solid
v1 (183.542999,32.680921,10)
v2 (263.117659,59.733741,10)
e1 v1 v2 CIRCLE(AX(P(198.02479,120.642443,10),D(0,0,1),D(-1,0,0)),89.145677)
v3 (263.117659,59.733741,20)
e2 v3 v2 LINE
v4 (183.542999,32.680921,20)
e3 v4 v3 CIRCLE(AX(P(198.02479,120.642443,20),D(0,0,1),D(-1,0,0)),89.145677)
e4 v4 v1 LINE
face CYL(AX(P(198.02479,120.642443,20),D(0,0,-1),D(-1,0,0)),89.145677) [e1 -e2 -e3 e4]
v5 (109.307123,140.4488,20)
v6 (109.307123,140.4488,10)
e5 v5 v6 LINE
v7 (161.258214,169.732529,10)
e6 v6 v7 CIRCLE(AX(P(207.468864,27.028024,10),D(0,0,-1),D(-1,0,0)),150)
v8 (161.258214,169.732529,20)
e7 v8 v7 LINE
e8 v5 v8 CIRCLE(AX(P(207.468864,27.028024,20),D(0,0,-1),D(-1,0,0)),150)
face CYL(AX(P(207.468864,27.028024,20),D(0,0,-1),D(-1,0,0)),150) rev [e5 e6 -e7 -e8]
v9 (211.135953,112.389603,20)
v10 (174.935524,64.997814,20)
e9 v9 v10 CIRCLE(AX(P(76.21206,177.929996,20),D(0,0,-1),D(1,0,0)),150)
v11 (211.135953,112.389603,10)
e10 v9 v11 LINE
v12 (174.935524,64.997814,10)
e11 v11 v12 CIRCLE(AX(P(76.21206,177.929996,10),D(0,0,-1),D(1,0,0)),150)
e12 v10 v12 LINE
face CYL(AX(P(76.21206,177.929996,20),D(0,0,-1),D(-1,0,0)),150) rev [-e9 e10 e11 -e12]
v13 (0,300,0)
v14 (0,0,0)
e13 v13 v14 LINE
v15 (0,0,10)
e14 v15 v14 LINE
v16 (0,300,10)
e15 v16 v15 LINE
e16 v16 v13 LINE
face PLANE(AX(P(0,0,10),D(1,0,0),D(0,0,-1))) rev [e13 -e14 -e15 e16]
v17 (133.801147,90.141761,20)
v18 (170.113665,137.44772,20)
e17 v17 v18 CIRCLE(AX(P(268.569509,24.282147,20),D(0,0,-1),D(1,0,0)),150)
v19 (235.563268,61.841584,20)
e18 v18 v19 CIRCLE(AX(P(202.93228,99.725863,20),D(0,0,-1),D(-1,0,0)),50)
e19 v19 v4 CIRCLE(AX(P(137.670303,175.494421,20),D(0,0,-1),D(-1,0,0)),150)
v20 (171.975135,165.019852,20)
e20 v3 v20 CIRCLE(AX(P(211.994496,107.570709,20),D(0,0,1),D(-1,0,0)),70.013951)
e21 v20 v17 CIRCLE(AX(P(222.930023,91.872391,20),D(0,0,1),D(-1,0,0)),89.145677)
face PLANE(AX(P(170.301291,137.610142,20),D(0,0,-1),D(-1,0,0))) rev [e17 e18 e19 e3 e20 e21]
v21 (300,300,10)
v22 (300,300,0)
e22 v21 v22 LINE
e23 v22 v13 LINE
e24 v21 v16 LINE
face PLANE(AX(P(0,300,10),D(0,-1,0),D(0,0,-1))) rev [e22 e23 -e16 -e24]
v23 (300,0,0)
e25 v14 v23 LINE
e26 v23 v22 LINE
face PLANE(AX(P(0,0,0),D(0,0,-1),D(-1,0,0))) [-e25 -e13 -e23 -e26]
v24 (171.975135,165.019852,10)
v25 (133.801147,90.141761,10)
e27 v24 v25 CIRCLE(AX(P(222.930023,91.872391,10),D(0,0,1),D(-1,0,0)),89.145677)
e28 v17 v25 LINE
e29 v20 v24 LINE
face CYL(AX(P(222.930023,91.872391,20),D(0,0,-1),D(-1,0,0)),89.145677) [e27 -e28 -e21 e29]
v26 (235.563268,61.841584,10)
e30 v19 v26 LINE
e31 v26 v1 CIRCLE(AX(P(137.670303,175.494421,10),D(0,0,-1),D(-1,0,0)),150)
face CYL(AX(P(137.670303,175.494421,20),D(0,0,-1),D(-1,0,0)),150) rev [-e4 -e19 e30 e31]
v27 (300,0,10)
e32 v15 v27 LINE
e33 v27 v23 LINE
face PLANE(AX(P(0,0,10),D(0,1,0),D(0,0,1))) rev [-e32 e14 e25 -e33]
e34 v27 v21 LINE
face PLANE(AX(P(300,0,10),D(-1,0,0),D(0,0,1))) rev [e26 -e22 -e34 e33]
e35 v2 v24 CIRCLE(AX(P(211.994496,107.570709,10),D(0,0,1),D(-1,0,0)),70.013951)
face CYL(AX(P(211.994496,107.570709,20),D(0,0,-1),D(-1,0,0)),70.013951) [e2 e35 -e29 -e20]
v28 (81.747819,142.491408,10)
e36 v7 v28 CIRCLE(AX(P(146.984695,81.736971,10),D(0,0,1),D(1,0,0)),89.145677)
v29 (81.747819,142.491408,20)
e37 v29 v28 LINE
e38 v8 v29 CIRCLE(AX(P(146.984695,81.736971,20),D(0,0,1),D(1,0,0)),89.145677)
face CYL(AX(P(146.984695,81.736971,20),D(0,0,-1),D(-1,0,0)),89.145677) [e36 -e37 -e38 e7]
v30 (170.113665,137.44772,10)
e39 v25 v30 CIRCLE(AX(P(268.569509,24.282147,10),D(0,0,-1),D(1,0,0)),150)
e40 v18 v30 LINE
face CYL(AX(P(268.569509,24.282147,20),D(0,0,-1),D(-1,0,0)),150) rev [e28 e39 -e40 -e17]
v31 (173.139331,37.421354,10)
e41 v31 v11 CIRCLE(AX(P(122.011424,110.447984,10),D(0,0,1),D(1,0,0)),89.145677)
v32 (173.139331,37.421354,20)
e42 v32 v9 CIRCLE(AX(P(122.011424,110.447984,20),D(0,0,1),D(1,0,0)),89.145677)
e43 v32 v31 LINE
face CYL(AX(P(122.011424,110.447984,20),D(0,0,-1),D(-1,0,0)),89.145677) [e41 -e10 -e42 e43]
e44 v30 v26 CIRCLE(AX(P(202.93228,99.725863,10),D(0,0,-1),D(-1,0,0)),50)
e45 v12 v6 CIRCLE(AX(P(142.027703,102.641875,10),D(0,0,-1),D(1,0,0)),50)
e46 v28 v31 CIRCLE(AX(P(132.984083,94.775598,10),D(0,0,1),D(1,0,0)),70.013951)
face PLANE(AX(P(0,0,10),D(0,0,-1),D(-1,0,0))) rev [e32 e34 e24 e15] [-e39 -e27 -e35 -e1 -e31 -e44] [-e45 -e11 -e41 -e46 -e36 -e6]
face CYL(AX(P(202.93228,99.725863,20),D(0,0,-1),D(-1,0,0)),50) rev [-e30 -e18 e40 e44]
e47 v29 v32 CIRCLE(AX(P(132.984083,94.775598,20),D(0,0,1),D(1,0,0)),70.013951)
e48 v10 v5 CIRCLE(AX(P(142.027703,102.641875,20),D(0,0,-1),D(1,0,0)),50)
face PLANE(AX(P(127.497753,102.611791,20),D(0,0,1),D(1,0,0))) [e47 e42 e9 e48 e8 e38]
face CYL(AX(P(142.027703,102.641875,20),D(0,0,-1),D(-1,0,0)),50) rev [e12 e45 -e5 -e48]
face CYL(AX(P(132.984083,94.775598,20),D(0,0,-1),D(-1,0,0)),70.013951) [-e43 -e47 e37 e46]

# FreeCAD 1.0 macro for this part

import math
import FreeCAD as App
import Part
import Sketcher

V = App.Vector

doc = App.newDocument("Part")
params = doc.addObject("Spreadsheet::Sheet", "Params")
for row, (alias, value) in enumerate([
    ("sketch1_width", "300 mm"),
    ("pad1_length", "10 mm"),
    ("sketch2_radius", "150 mm"),
    ("sketch2_radius2", "50 mm"),
    ("pad2_length", "10 mm"),
], start=1):
    params.set(f"A{row}", alias)
    params.set(f"B{row}", "=" + value)
    params.setAlias(f"B{row}", alias)

body = doc.addObject("PartDesign::Body", "Body")

sketch1 = body.newObject("Sketcher::SketchObject", "Sketch")
sketch1.AttachmentSupport = (doc.getObject("XY_Plane"), [""])
sketch1.MapMode = "FlatFace"
sketch1.addGeometry(Part.LineSegment(V(0, 300, 0), V(0, 0, 0)), False)
sketch1.addGeometry(Part.LineSegment(V(0, 0, 0), V(300, 0, 0)), False)
sketch1.addGeometry(Part.LineSegment(V(300, 0, 0), V(300, 300, 0)), False)
sketch1.addGeometry(Part.LineSegment(V(300, 300, 0), V(0, 300, 0)), False)
sketch1.addConstraint(Sketcher.Constraint("Coincident", 0, 2, 1, 1))
sketch1.addConstraint(Sketcher.Constraint("Coincident", 1, 2, 2, 1))
sketch1.addConstraint(Sketcher.Constraint("Coincident", 2, 2, 3, 1))
sketch1.addConstraint(Sketcher.Constraint("Coincident", 3, 2, 0, 1))
sketch1.addConstraint(Sketcher.Constraint("Vertical", 0))
sketch1.addConstraint(Sketcher.Constraint("Horizontal", 1))
sketch1.addConstraint(Sketcher.Constraint("Vertical", 2))
sketch1.addConstraint(Sketcher.Constraint("Horizontal", 3))
sketch1.addConstraint(Sketcher.Constraint("Coincident", 0, 2, -1, 1))
sketch1.addConstraint(Sketcher.Constraint("Equal", 3, 0))
sketch1.addConstraint(Sketcher.Constraint("DistanceX", 1, 1, 1, 2, 300.0))
sketch1.setExpression("Constraints[10]", "Params.sketch1_width")
pad1 = body.newObject("PartDesign::Pad", "Pad")
pad1.Profile = sketch1
pad1.setExpression("Length", "Params.pad1_length")

sketch2 = body.newObject("Sketcher::SketchObject", "Sketch001")
sketch2.AttachmentSupport = (doc.getObject("XY_Plane"), [""])
sketch2.MapMode = "FlatFace"
sketch2.AttachmentOffset = App.Placement(V(0, 0, 10), App.Rotation())
sketch2.addGeometry(Part.ArcOfCircle(Part.Circle(V(147, 82, 0), V(0, 0, 1), 89), math.radians(81), math.radians(137)), False)
sketch2.addGeometry(Part.ArcOfCircle(Part.Circle(V(133, 95, 0), V(0, 0, 1), 70), math.radians(137), math.radians(305)), False)
sketch2.addGeometry(Part.ArcOfCircle(Part.Circle(V(122, 110, 0), V(0, 0, 1), 89), math.radians(-55), math.radians(1)), False)
sketch2.addGeometry(Part.ArcOfCircle(Part.Circle(V(76, 178, 0), V(0, 0, 1), 150), math.radians(-49), math.radians(-26)), False)
sketch2.addGeometry(Part.ArcOfCircle(Part.Circle(V(142, 103, 0), V(0, 0, 1), 50), math.radians(131), math.radians(311)), False)
sketch2.addGeometry(Part.ArcOfCircle(Part.Circle(V(207, 27, 0), V(0, 0, 1), 150), math.radians(108), math.radians(131)), False)
sketch2.addGeometry(Part.ArcOfCircle(Part.Circle(V(198, 121, 0), V(0, 0, 1), 89), math.radians(-99), math.radians(-43)), False)
sketch2.addGeometry(Part.ArcOfCircle(Part.Circle(V(212, 108, 0), V(0, 0, 1), 70), math.radians(-43), math.radians(125)), False)
sketch2.addGeometry(Part.ArcOfCircle(Part.Circle(V(223, 92, 0), V(0, 0, 1), 89), math.radians(125), math.radians(181)), False)
sketch2.addGeometry(Part.ArcOfCircle(Part.Circle(V(269, 24, 0), V(0, 0, 1), 150), math.radians(131), math.radians(154)), False)
sketch2.addGeometry(Part.ArcOfCircle(Part.Circle(V(203, 100, 0), V(0, 0, 1), 50), math.radians(-49), math.radians(131)), False)
sketch2.addGeometry(Part.ArcOfCircle(Part.Circle(V(138, 175, 0), V(0, 0, 1), 150), math.radians(-72), math.radians(-49)), False)
sketch2.addConstraint(Sketcher.Constraint("Tangent", 0, 2, 1, 1))
sketch2.addConstraint(Sketcher.Constraint("Tangent", 1, 2, 2, 1))
sketch2.addConstraint(Sketcher.Constraint("Coincident", 2, 2, 3, 2))
sketch2.addConstraint(Sketcher.Constraint("Tangent", 3, 1, 4, 2))
sketch2.addConstraint(Sketcher.Constraint("Tangent", 4, 1, 5, 2))
sketch2.addConstraint(Sketcher.Constraint("Coincident", 5, 1, 0, 1))
sketch2.addConstraint(Sketcher.Constraint("Tangent", 6, 2, 7, 1))
sketch2.addConstraint(Sketcher.Constraint("Tangent", 7, 2, 8, 1))
sketch2.addConstraint(Sketcher.Constraint("Coincident", 8, 2, 9, 2))
sketch2.addConstraint(Sketcher.Constraint("Tangent", 9, 1, 10, 2))
sketch2.addConstraint(Sketcher.Constraint("Tangent", 10, 1, 11, 2))
sketch2.addConstraint(Sketcher.Constraint("Coincident", 11, 1, 6, 1))
sketch2.addConstraint(Sketcher.Constraint("Equal", 0, 2))
sketch2.addConstraint(Sketcher.Constraint("Equal", 3, 5))
sketch2.addConstraint(Sketcher.Constraint("Equal", 2, 6))
sketch2.addConstraint(Sketcher.Constraint("Equal", 1, 7))
sketch2.addConstraint(Sketcher.Constraint("Equal", 6, 8))
sketch2.addConstraint(Sketcher.Constraint("Equal", 5, 9))
sketch2.addConstraint(Sketcher.Constraint("Equal", 4, 10))
sketch2.addConstraint(Sketcher.Constraint("Equal", 9, 11))
sketch2.addConstraint(Sketcher.Constraint("Radius", 3, 150.0))
sketch2.addConstraint(Sketcher.Constraint("Radius", 4, 50.0))
sketch2.addConstraint(Sketcher.Constraint("Radius", 1, 70.013951))
sketch2.addConstraint(Sketcher.Constraint("DistanceX", -1, 1, 11, 1, 183.542999))
sketch2.addConstraint(Sketcher.Constraint("Radius", 0, 89.145677))
sketch2.addConstraint(Sketcher.Constraint("DistanceY", -1, 1, 4, 1, 140.4488))
sketch2.addConstraint(Sketcher.Constraint("DistanceX", 0, 3, 7, 3, 65.009802))
sketch2.addConstraint(Sketcher.Constraint("DistanceX", 11, 3, 4, 3, 4.3574))
sketch2.addConstraint(Sketcher.Constraint("DistanceX", 4, 1, 2, 3, 12.704301))
sketch2.addConstraint(Sketcher.Constraint("DistanceY", -1, 1, 0, 3, 81.736971))
sketch2.addConstraint(Sketcher.Constraint("DistanceX", -1, 1, 3, 3, 76.21206))
sketch2.addConstraint(Sketcher.Constraint("DistanceX", -1, 1, 6, 3, 198.02479))
sketch2.addConstraint(Sketcher.Constraint("DistanceY", -1, 1, 7, 3, 107.570709))
sketch2.addConstraint(Sketcher.Constraint("DistanceY", -1, 1, 8, 3, 91.872391))
sketch2.addConstraint(Sketcher.Constraint("DistanceX", -1, 1, 9, 3, 268.569509))
sketch2.addConstraint(Sketcher.Constraint("DistanceX", -1, 1, 10, 3, 202.93228))
sketch2.addConstraint(Sketcher.Constraint("DistanceY", -1, 1, 11, 3, 175.494421))
sketch2.addConstraint(Sketcher.Constraint("DistanceX", -1, 1, 0, 2, 81.747819))
sketch2.addConstraint(Sketcher.Constraint("DistanceX", -1, 1, 1, 2, 173.139331))
sketch2.addConstraint(Sketcher.Constraint("DistanceY", -1, 1, 5, 1, 169.732529))
sketch2.setExpression("Constraints[20]", "Params.sketch2_radius")
sketch2.setExpression("Constraints[21]", "Params.sketch2_radius2")
pad2 = body.newObject("PartDesign::Pad", "Pad001")
pad2.Profile = sketch2
pad2.setExpression("Length", "Params.pad2_length")

doc.recompute()
